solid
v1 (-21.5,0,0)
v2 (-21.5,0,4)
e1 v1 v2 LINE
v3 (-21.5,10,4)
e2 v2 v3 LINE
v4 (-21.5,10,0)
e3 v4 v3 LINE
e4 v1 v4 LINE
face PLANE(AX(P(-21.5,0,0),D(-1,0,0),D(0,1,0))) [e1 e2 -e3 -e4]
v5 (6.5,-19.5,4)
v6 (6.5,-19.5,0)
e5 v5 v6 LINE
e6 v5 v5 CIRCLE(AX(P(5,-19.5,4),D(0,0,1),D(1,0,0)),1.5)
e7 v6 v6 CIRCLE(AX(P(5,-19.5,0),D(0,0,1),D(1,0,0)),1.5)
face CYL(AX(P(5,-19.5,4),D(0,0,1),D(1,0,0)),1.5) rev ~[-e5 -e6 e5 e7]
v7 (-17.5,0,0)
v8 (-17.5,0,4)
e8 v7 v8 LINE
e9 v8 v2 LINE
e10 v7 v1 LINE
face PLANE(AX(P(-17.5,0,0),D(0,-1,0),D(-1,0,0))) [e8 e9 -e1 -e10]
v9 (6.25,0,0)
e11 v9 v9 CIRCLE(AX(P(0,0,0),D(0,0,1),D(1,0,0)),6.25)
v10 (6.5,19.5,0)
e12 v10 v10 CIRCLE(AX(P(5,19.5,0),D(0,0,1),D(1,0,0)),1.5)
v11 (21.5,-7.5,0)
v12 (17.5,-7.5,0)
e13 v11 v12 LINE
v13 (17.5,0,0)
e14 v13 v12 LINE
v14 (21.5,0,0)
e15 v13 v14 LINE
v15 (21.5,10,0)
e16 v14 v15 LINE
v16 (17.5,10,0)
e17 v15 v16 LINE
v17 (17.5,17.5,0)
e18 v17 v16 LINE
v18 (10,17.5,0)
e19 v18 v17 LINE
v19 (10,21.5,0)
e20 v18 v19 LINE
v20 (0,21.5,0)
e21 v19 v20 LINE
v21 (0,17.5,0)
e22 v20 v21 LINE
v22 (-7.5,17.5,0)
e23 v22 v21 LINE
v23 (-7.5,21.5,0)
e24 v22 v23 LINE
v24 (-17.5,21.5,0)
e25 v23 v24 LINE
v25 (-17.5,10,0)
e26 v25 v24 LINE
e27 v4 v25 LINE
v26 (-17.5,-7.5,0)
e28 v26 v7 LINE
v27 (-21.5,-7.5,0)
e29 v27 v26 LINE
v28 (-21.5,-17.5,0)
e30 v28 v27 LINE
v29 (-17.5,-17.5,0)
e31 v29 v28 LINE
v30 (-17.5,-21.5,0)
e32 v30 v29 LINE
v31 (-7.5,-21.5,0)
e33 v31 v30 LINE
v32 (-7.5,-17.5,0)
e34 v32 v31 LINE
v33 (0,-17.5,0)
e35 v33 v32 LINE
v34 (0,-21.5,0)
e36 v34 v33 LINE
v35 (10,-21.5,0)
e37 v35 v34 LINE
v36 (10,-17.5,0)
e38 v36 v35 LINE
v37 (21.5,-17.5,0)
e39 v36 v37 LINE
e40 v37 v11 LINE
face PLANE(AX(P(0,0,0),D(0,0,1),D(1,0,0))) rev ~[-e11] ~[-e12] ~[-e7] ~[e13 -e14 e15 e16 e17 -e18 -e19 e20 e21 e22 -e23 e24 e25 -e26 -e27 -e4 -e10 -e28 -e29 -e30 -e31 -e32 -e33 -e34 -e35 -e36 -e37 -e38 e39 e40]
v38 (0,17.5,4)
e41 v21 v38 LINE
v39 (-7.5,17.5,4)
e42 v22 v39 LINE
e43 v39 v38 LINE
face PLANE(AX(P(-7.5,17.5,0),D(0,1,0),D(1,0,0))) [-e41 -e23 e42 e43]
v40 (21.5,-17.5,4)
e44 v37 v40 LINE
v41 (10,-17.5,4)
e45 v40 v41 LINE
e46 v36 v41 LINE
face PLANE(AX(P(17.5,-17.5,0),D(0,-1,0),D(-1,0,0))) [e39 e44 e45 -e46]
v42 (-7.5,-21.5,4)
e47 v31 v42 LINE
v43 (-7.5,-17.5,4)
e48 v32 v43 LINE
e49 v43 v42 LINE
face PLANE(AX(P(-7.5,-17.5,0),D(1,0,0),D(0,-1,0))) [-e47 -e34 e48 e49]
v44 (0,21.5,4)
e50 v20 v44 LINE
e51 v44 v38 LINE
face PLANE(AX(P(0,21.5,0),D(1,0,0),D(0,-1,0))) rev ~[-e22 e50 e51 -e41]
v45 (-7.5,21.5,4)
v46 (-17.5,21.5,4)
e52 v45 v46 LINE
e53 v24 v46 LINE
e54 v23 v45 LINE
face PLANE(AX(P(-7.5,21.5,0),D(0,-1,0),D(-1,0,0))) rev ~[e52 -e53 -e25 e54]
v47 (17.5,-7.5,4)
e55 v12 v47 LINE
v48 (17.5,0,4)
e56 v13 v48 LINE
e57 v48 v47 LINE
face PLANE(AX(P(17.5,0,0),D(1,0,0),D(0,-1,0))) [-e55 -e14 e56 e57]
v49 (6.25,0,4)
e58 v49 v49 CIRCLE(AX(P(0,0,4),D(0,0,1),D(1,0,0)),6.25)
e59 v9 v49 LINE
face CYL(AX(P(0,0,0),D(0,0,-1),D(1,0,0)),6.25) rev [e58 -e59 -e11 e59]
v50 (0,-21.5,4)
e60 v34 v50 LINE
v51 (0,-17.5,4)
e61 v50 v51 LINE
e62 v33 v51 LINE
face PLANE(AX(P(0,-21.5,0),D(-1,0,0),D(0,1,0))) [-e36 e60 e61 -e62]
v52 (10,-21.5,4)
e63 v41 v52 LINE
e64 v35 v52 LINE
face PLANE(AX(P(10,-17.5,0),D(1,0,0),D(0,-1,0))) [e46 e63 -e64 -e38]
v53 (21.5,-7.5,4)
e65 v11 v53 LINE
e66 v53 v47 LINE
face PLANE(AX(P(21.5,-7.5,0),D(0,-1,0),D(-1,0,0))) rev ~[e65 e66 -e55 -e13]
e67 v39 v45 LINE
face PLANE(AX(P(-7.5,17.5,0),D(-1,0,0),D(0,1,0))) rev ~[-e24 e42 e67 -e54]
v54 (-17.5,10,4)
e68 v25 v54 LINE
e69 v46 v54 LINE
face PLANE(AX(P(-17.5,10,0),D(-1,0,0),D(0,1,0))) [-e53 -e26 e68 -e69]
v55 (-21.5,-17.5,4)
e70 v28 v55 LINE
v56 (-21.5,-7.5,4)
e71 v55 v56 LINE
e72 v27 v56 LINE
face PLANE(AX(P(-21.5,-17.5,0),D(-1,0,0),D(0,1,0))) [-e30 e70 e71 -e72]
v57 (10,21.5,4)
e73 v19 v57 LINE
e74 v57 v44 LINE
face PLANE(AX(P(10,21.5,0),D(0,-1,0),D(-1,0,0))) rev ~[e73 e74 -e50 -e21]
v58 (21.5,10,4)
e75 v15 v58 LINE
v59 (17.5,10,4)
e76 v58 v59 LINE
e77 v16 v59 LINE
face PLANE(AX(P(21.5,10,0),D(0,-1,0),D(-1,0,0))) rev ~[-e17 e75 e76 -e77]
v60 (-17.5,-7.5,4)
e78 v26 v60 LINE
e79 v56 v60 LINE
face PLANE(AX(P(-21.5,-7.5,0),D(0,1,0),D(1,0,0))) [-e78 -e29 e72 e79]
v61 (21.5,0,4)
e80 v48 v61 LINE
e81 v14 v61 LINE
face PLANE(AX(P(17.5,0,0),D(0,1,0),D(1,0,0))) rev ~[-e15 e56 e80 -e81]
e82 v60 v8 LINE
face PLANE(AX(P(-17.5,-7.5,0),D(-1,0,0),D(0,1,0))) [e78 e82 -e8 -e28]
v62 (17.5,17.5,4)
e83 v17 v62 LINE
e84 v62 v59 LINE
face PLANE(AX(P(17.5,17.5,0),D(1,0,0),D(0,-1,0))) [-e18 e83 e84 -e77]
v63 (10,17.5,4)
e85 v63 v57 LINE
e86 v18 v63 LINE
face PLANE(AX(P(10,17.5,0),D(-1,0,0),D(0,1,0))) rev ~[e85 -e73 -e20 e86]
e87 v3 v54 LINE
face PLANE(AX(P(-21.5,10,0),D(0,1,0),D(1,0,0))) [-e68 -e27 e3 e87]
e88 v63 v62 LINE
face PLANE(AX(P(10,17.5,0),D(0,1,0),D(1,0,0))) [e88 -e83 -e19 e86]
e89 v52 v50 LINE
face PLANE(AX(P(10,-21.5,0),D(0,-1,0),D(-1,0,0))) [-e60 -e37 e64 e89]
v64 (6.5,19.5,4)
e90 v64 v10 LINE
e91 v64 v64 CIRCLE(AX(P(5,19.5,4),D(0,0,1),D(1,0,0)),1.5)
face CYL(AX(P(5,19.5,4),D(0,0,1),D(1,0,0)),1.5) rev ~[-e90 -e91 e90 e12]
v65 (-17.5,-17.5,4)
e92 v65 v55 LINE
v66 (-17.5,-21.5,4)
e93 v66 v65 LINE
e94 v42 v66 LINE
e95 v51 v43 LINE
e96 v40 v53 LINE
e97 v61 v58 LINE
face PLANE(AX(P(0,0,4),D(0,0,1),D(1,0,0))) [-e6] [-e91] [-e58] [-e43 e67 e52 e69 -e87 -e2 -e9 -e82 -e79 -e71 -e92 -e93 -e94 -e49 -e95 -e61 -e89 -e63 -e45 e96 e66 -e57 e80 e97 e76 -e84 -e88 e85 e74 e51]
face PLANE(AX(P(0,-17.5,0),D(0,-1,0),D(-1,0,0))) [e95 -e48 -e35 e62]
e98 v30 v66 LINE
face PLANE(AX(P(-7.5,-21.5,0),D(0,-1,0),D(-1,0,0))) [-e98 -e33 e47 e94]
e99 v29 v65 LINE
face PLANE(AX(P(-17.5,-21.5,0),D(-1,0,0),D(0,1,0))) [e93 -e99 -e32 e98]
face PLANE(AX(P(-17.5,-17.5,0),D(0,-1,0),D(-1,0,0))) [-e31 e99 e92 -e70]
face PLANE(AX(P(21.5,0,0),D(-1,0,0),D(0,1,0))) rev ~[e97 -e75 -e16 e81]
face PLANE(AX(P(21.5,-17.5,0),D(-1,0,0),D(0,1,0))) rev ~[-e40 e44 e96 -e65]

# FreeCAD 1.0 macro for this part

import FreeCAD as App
import Part
import Sketcher

V = App.Vector
Q = App.Units.Quantity


def add_polygon(sketch, points):
    """Adds a closed chain of lines whose ends are joined by coincident constraints."""
    first, n = sketch.GeometryCount, len(points)
    for a, b in zip(points, points[1:] + points[:1]):
        sketch.addGeometry(Part.LineSegment(App.Vector(*a, 0), App.Vector(*b, 0)), False)
    for i in range(n):
        sketch.addConstraint(Sketcher.Constraint("Coincident", first + i, 2, first + (i + 1) % n, 1))

doc = App.newDocument("Part")
body = doc.addObject("PartDesign::Body", "Body")

# Sketch on XY plane
sketch1 = doc.addObject("Sketcher::SketchObject", "Sketch")
body.addObject(sketch1)
sketch1.AttachmentSupport = (doc.XY_Plane, [""])
sketch1.MapMode = "FlatFace"
add_polygon(sketch1, [(10, -17.5), (21.5, -17.5), (21.5, -7.5), (17.5, -7.5), (17.5, 0), (21.5, 0), (21.5, 10), (17.5, 10), (17.5, 17.5), (10, 17.5), (10, 21.5), (0, 21.5), (0, 17.5), (-7.5, 17.5), (-7.5, 21.5), (-17.5, 21.5), (-17.5, 10), (-21.5, 10), (-21.5, 0), (-17.5, 0), (-17.5, -7.5), (-21.5, -7.5), (-21.5, -17.5), (-17.5, -17.5), (-17.5, -21.5), (-7.5, -21.5), (-7.5, -17.5), (0, -17.5), (0, -21.5), (10, -21.5)])  # lines 0-29
sketch1.addGeometry(Part.Circle(V(0, 0, 0), V(0, 0, 1), 6.2), False)  # 30
sketch1.addConstraint([
    Sketcher.Constraint("Horizontal", 0),
    Sketcher.Constraint("Vertical", 1),
    Sketcher.Constraint("Horizontal", 2),
    Sketcher.Constraint("Vertical", 3),
    Sketcher.Constraint("Horizontal", 4),
    Sketcher.Constraint("Vertical", 5),
    Sketcher.Constraint("Horizontal", 6),
    Sketcher.Constraint("Vertical", 7),
    Sketcher.Constraint("Horizontal", 8),
    Sketcher.Constraint("Vertical", 9),
    Sketcher.Constraint("Horizontal", 10),
    Sketcher.Constraint("Vertical", 11),
    Sketcher.Constraint("Horizontal", 12),
    Sketcher.Constraint("Vertical", 13),
    Sketcher.Constraint("Horizontal", 14),
    Sketcher.Constraint("Vertical", 15),
    Sketcher.Constraint("Horizontal", 16),
    Sketcher.Constraint("Vertical", 17),
    Sketcher.Constraint("Horizontal", 18),
    Sketcher.Constraint("Vertical", 19),
    Sketcher.Constraint("Horizontal", 20),
    Sketcher.Constraint("Vertical", 21),
    Sketcher.Constraint("Horizontal", 22),
    Sketcher.Constraint("Vertical", 23),
    Sketcher.Constraint("Horizontal", 24),
    Sketcher.Constraint("Vertical", 25),
    Sketcher.Constraint("Horizontal", 26),
    Sketcher.Constraint("Vertical", 27),
    Sketcher.Constraint("Horizontal", 28),
    Sketcher.Constraint("Vertical", 29),
    Sketcher.Constraint("Coincident", 30, 3, -1, 1),
    Sketcher.Constraint("Symmetric", 4, 2, 17, 2, -1, 1),
    Sketcher.Constraint("Symmetric", 7, 2, 22, 2, -1, 1),
    Sketcher.Constraint("Symmetric", 11, 2, 26, 2, -1, 1),
    Sketcher.Constraint("Symmetric", 6, 2, 15, 2, -2),
    Sketcher.Constraint("Symmetric", 3, 2, 18, 2, -2),
    Sketcher.Constraint("Symmetric", 1, 2, 20, 2, -2),
    Sketcher.Constraint("Symmetric", 13, 2, 24, 2, -1),
    Sketcher.Constraint("Symmetric", 10, 2, 27, 2, -1),
    Sketcher.Constraint("Symmetric", 8, 2, 29, 2, -1),
    Sketcher.Constraint("Horizontal", 8, 2, 11, 2),
    Sketcher.Constraint("Horizontal", 10, 2, 13, 2),
    Sketcher.Constraint("Vertical", 1, 2, 4, 2),
    Sketcher.Constraint("Vertical", 3, 2, 6, 2),
    Sketcher.Constraint("Equal", 8, 12),
    Sketcher.Constraint("Equal", 28, 1),
    Sketcher.Constraint("Equal", 26, 3),
    Sketcher.Constraint("Equal", 1, 5),
    Sketcher.Constraint("Equal", 22, 9),
    Sketcher.Constraint("Diameter", 30, Q("12.5 mm")),
    Sketcher.Constraint("DistanceX", 2, 2, 2, 1, Q("4 mm")),
    Sketcher.Constraint("DistanceX", 10, 2, 10, 1, Q("10 mm")),
    Sketcher.Constraint("DistanceX", 8, 2, 8, 1, Q("7.5 mm")),
])
pad1 = doc.addObject("PartDesign::Pad", "Pad")
body.addObject(pad1)
pad1.Profile = sketch1
pad1.Length = 4

# Sketch on XY plane
sketch2 = doc.addObject("Sketcher::SketchObject", "Sketch001")
body.addObject(sketch2)
sketch2.AttachmentSupport = (doc.XY_Plane, [""])
sketch2.MapMode = "FlatFace"
sketch2.AttachmentOffset = App.Placement(V(0, 0, 4), App.Rotation())
sketch2.addGeometry([
    Part.Circle(V(5, 19.5, 0), V(0, 0, 1), 1.5),
    Part.Circle(V(5, -19.5, 0), V(0, 0, 1), 1.5),
], False)
sketch2.addConstraint([
    Sketcher.Constraint("Equal", 0, 1),
    Sketcher.Constraint("Symmetric", 0, 3, 1, 3, -1),
    Sketcher.Constraint("Diameter", 0, Q("3 mm")),
    Sketcher.Constraint("DistanceX", -1, 1, 0, 3, Q("5 mm")),
    Sketcher.Constraint("DistanceY", 1, 3, 0, 3, Q("39 mm")),
])
pocket1 = doc.addObject("PartDesign::Pocket", "Pocket")
body.addObject(pocket1)
pocket1.Profile = sketch2
pocket1.Length = 4

doc.recompute()
